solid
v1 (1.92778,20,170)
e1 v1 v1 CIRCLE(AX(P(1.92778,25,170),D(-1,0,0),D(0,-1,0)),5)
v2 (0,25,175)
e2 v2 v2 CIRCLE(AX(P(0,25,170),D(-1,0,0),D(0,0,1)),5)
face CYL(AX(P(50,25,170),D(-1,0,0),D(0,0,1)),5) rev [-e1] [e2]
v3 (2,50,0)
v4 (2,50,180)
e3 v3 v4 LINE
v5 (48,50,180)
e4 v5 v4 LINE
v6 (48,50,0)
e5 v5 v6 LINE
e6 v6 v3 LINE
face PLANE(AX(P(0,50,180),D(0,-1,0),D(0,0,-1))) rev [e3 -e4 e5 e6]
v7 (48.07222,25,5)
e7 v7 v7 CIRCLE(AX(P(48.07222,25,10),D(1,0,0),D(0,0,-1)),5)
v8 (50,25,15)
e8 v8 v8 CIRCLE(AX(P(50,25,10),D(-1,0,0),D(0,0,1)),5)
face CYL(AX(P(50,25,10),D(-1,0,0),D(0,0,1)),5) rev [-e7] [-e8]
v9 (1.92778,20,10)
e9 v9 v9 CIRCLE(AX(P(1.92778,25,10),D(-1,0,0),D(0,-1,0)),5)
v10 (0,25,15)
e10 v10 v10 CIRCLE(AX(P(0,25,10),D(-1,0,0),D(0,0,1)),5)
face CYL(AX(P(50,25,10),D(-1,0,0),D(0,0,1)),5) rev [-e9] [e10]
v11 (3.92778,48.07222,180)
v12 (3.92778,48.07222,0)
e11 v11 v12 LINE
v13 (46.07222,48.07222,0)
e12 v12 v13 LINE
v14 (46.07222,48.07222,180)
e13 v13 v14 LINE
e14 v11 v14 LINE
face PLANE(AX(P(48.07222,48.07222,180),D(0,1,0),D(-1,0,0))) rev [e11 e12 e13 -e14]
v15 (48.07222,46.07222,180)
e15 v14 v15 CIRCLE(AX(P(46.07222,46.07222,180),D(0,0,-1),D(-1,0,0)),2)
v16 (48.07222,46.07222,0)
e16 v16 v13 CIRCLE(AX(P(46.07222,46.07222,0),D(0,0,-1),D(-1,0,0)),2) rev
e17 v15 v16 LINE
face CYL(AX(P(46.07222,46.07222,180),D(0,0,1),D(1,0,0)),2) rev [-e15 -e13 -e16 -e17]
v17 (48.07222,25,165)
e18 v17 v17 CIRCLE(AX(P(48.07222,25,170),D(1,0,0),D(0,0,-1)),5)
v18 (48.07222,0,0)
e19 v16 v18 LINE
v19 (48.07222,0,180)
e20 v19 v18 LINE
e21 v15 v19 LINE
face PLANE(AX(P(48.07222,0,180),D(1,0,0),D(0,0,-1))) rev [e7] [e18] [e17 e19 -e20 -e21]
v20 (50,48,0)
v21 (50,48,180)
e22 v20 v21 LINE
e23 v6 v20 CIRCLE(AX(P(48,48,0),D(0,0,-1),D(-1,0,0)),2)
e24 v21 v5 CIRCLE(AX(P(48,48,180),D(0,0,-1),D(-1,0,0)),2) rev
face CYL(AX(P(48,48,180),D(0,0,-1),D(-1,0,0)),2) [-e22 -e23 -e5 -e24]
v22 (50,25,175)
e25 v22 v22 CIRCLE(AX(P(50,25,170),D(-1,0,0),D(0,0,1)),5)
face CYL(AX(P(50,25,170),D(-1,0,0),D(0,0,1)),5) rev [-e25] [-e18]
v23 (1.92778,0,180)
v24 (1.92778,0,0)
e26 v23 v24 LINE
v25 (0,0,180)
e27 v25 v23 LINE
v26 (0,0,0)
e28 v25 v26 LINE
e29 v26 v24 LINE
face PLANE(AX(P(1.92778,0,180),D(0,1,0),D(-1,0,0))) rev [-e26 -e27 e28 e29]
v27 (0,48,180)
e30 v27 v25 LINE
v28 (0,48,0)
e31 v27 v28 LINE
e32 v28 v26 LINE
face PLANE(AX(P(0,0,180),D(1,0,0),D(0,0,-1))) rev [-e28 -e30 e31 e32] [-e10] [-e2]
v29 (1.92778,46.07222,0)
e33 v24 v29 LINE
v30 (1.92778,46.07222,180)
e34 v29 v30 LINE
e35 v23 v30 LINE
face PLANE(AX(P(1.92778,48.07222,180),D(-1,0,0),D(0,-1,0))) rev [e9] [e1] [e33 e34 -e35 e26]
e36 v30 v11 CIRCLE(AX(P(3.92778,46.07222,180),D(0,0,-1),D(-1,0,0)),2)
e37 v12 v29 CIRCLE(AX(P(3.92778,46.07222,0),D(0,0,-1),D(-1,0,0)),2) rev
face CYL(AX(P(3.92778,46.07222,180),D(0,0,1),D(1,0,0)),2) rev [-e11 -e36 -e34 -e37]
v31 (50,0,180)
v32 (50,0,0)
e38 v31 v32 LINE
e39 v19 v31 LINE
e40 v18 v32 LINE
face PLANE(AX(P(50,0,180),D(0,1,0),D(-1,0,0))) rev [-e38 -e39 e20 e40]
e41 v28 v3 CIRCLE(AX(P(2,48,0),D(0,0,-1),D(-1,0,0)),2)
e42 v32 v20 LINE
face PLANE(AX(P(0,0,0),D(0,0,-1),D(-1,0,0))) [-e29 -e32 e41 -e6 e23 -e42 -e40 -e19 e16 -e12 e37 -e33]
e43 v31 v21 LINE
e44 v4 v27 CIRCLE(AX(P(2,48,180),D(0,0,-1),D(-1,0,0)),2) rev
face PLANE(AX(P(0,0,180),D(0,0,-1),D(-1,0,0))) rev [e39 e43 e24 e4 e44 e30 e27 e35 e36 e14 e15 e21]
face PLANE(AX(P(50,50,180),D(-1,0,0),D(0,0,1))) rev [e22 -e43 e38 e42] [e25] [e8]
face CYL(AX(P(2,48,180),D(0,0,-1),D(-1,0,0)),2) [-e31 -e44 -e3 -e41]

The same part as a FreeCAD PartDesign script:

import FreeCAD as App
import Part
import Sketcher

V = App.Vector


def edges_at(feature, points):
    """Names of the edges that pass closest to the given points."""
    edges = feature.Shape.Edges
    near = lambda p: min(range(len(edges)), key=lambda i: edges[i].distToShape(Part.Vertex(*p))[0])
    return sorted({f"Edge{near(p) + 1}" for p in points})

doc = App.newDocument("Part")
body = doc.addObject("PartDesign::Body", "Body")

sketch1 = doc.addObject("Sketcher::SketchObject", "Sketch")
body.addObject(sketch1)
sketch1.AttachmentSupport = (doc.XY_Plane, [""])
sketch1.MapMode = "FlatFace"
sketch1.addGeometry(Part.LineSegment(V(0, 50, 0), V(0, 0, 0)), False)
sketch1.addGeometry(Part.LineSegment(V(0, 0, 0), V(1.9, 0, 0)), False)
sketch1.addGeometry(Part.LineSegment(V(1.9, 0, 0), V(1.9, 48.1, 0)), False)
sketch1.addGeometry(Part.LineSegment(V(1.9, 48.1, 0), V(48.1, 48.1, 0)), False)
sketch1.addGeometry(Part.LineSegment(V(48.1, 48.1, 0), V(48.1, 0, 0)), False)
sketch1.addGeometry(Part.LineSegment(V(48.1, 0, 0), V(50, 0, 0)), False)
sketch1.addGeometry(Part.LineSegment(V(50, 0, 0), V(50, 50, 0)), False)
sketch1.addGeometry(Part.LineSegment(V(50, 50, 0), V(0, 50, 0)), False)
sketch1.addConstraint(Sketcher.Constraint("Coincident", 0, 2, 1, 1))
sketch1.addConstraint(Sketcher.Constraint("Coincident", 1, 2, 2, 1))
sketch1.addConstraint(Sketcher.Constraint("Coincident", 2, 2, 3, 1))
sketch1.addConstraint(Sketcher.Constraint("Coincident", 3, 2, 4, 1))
sketch1.addConstraint(Sketcher.Constraint("Coincident", 4, 2, 5, 1))
sketch1.addConstraint(Sketcher.Constraint("Coincident", 5, 2, 6, 1))
sketch1.addConstraint(Sketcher.Constraint("Coincident", 6, 2, 7, 1))
sketch1.addConstraint(Sketcher.Constraint("Coincident", 7, 2, 0, 1))
sketch1.addConstraint(Sketcher.Constraint("Vertical", 0))
sketch1.addConstraint(Sketcher.Constraint("Horizontal", 1))
sketch1.addConstraint(Sketcher.Constraint("Vertical", 2))
sketch1.addConstraint(Sketcher.Constraint("Horizontal", 3))
sketch1.addConstraint(Sketcher.Constraint("Vertical", 4))
sketch1.addConstraint(Sketcher.Constraint("Horizontal", 5))
sketch1.addConstraint(Sketcher.Constraint("Vertical", 6))
sketch1.addConstraint(Sketcher.Constraint("Horizontal", 7))
sketch1.addConstraint(Sketcher.Constraint("Coincident", 0, 2, -1, 1))
sketch1.addConstraint(Sketcher.Constraint("PointOnObject", 4, 2, -1))
sketch1.addConstraint(Sketcher.Constraint("Equal", 1, 5))
sketch1.addConstraint(Sketcher.Constraint("Equal", 7, 0))
sketch1.addConstraint(Sketcher.Constraint("DistanceX", 7, 2, 7, 1, 50.0))
sketch1.addConstraint(Sketcher.Constraint("DistanceX", 1, 1, 1, 2, 1.92778))
sketch1.addConstraint(Sketcher.Constraint("DistanceY", 2, 1, 2, 2, 48.07222))
pad1 = doc.addObject("PartDesign::Pad", "Pad")
body.addObject(pad1)
pad1.Profile = sketch1
pad1.Length = 180

sketch2 = doc.addObject("Sketcher::SketchObject", "Sketch001")
body.addObject(sketch2)
sketch2.AttachmentSupport = (doc.YZ_Plane, [""])
sketch2.MapMode = "FlatFace"
sketch2.addGeometry(Part.Circle(V(25, 10, 0), V(0, 0, 1), 5), False)
sketch2.addGeometry(Part.Circle(V(25, 170, 0), V(0, 0, 1), 5), False)
sketch2.addConstraint(Sketcher.Constraint("Equal", 0, 1))
sketch2.addConstraint(Sketcher.Constraint("Vertical", 0, 3, 1, 3))
sketch2.addConstraint(Sketcher.Constraint("Diameter", 0, 10.0))
sketch2.addConstraint(Sketcher.Constraint("DistanceX", -1, 1, 0, 3, 25.0))
sketch2.addConstraint(Sketcher.Constraint("DistanceY", -1, 1, 0, 3, 10.0))
sketch2.addConstraint(Sketcher.Constraint("DistanceY", -1, 1, 1, 3, 170.0))
pocket1 = doc.addObject("PartDesign::Pocket", "Pocket")
body.addObject(pocket1)
pocket1.Profile = sketch2
pocket1.Type = "ThroughAll"
pocket1.Reversed = True
doc.recompute()

fillet = doc.addObject("PartDesign::Fillet", "Fillet")
body.addObject(fillet)
fillet.Base = (pocket1, edges_at(pocket1, [
    (0, 50, 90),
    (50, 50, 90),
    (48.072, 48.072, 90),
    (1.928, 48.072, 90),
]))
fillet.Radius = 2

doc.recompute()
